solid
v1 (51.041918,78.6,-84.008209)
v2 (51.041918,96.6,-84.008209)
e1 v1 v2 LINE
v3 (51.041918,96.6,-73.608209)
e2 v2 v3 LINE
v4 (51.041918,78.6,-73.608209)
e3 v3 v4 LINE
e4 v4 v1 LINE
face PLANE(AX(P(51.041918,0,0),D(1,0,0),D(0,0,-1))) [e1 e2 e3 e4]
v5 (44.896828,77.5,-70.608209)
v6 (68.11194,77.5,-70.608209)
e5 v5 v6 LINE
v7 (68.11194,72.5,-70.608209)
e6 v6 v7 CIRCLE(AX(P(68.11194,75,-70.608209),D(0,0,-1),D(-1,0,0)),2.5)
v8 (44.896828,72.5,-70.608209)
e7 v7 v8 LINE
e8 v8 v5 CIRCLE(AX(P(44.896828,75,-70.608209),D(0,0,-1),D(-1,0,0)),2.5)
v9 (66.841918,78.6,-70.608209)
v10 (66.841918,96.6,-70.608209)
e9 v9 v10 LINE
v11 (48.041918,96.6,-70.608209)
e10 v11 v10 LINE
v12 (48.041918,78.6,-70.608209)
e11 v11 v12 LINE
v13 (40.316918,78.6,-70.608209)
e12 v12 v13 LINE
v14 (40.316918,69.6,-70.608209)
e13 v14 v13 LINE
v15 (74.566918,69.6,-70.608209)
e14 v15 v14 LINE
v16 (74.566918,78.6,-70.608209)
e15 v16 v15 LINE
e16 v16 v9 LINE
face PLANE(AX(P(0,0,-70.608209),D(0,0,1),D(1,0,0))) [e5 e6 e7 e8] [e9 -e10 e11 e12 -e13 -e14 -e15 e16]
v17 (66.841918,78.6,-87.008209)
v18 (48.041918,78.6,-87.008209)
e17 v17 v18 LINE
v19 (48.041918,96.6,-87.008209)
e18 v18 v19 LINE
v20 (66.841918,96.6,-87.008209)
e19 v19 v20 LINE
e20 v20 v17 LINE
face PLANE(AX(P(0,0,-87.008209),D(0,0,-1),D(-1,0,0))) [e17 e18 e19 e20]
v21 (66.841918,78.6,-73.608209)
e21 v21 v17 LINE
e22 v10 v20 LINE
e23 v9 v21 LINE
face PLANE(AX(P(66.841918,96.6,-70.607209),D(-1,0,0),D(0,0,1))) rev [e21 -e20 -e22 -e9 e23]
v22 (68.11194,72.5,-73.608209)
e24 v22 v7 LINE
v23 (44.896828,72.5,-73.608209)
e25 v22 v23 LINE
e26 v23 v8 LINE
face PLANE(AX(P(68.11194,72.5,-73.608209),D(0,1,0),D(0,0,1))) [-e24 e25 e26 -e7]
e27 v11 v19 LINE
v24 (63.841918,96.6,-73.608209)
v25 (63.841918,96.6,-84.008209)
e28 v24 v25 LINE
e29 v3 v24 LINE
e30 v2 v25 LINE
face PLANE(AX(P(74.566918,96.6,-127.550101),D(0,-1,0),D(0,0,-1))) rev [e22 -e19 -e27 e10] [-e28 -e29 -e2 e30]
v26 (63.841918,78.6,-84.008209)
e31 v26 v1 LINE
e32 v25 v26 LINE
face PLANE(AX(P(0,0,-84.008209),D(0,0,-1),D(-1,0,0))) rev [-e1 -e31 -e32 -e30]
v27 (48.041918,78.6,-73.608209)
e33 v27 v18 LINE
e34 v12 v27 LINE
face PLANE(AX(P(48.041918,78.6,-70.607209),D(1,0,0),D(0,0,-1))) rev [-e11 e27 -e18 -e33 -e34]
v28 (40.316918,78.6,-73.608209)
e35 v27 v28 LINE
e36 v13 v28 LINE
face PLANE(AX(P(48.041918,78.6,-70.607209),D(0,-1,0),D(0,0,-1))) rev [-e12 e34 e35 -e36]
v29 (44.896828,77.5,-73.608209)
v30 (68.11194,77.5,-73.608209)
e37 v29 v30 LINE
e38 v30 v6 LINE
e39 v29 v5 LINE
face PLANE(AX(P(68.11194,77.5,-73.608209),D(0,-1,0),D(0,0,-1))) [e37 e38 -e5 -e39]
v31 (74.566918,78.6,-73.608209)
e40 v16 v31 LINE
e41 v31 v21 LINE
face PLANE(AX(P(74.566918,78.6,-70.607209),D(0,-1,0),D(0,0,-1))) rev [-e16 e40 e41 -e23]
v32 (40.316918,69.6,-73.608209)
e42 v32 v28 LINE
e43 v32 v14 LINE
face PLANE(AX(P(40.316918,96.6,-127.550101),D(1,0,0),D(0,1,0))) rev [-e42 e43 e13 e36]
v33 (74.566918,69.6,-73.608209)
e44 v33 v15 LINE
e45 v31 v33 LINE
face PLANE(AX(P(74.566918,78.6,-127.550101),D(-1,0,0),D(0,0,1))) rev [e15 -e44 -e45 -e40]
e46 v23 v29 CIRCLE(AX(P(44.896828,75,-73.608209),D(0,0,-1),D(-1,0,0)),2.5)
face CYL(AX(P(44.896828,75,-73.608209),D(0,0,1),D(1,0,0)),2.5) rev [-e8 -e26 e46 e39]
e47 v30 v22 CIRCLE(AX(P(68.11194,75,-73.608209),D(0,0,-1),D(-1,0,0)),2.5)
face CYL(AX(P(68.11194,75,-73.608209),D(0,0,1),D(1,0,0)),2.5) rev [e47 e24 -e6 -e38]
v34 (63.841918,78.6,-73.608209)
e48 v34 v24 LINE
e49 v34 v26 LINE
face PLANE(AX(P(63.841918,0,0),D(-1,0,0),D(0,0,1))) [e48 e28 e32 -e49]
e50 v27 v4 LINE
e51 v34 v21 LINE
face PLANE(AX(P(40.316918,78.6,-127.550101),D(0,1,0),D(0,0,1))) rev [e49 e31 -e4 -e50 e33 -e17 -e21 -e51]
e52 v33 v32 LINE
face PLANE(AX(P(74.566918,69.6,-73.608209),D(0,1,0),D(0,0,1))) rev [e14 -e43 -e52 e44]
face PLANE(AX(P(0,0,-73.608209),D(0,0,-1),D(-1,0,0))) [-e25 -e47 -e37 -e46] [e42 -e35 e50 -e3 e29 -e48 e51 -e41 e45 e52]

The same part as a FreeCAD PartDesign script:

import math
import FreeCAD as App
import Part
import Sketcher
Q = App.Units.Quantity

doc = App.newDocument("Part")
body = doc.addObject("PartDesign::Body", "Body")

sketch1 = doc.addObject("Sketcher::SketchObject", "Sketch")
body.addObject(sketch1)
sketch1.AttachmentSupport = (doc.XY_Plane, [""])
sketch1.MapMode = "FlatFace"
sketch1.AttachmentOffset = App.Placement(App.Vector(0, 0, -70.608209), App.Rotation())
sketch1.addGeometry([
    Part.LineSegment(App.Vector(46, 82, 0), App.Vector(69, 82, 0)),
    Part.LineSegment(App.Vector(69, 82, 0), App.Vector(69, 97, 0)),
    Part.LineSegment(App.Vector(69, 97, 0), App.Vector(75, 97, 0)),
    Part.LineSegment(App.Vector(75, 97, 0), App.Vector(75, 79, 0)),
    Part.LineSegment(App.Vector(75, 79, 0), App.Vector(40, 79, 0)),
    Part.LineSegment(App.Vector(40, 79, 0), App.Vector(40, 97, 0)),
    Part.LineSegment(App.Vector(40, 97, 0), App.Vector(46, 97, 0)),
    Part.LineSegment(App.Vector(46, 97, 0), App.Vector(46, 82, 0)),
], False)
sketch1.addConstraint([
    Sketcher.Constraint("Coincident", 0, 2, 1, 1),
    Sketcher.Constraint("Coincident", 1, 2, 2, 1),
    Sketcher.Constraint("Coincident", 2, 2, 3, 1),
    Sketcher.Constraint("Coincident", 3, 2, 4, 1),
    Sketcher.Constraint("Coincident", 4, 2, 5, 1),
    Sketcher.Constraint("Coincident", 5, 2, 6, 1),
    Sketcher.Constraint("Coincident", 6, 2, 7, 1),
    Sketcher.Constraint("Coincident", 7, 2, 0, 1),
    Sketcher.Constraint("Horizontal", 0),
    Sketcher.Constraint("Vertical", 1),
    Sketcher.Constraint("Horizontal", 2),
    Sketcher.Constraint("Vertical", 3),
    Sketcher.Constraint("Horizontal", 4),
    Sketcher.Constraint("Vertical", 5),
    Sketcher.Constraint("Horizontal", 6),
    Sketcher.Constraint("Vertical", 7),
    Sketcher.Constraint("Horizontal", 2, 2, 5, 2),
    Sketcher.Constraint("Equal", 2, 6),
    Sketcher.Constraint("DistanceY", 3, 2, 3, 1, Q("18 mm")),
    Sketcher.Constraint("DistanceX", 2, 1, 2, 2, Q("5.5 mm")),
    Sketcher.Constraint("DistanceY", 1, 1, 1, 2, Q("15.1 mm")),
    Sketcher.Constraint("DistanceX", 0, 1, 0, 2, Q("23.25 mm")),
    Sketcher.Constraint("DistanceY", -1, 1, 0, 2, Q("81.5 mm")),
    Sketcher.Constraint("DistanceX", -1, 1, 0, 2, Q("69.066918 mm")),
])
pad1 = doc.addObject("PartDesign::Pad", "Pad")
body.addObject(pad1)
pad1.Profile = sketch1
pad1.Length = 17.85
pad1.Reversed = True

sketch2 = doc.addObject("Sketcher::SketchObject", "Sketch001")
body.addObject(sketch2)
sketch2.AttachmentSupport = (doc.XY_Plane, [""])
sketch2.MapMode = "FlatFace"
sketch2.AttachmentOffset = App.Placement(App.Vector(0, 0, -88.458209), App.Rotation())
sketch2.addGeometry([
    Part.Circle(App.Vector(43.7, 88, 0), App.Vector(0, 0, 1), 1),
    Part.Circle(App.Vector(71.1, 88, 0), App.Vector(0, 0, 1), 1),
], False)
sketch2.addConstraint([
    Sketcher.Constraint("Equal", 0, 1),
    Sketcher.Constraint("Horizontal", 0, 3, 1, 3),
    Sketcher.Constraint("Diameter", 0, Q("2 mm")),
    Sketcher.Constraint("DistanceY", -1, 1, 0, 3, Q("88 mm")),
    Sketcher.Constraint("DistanceX", 0, 3, 1, 3, Q("27.4 mm")),
    Sketcher.Constraint("DistanceX", -1, 1, 0, 3, Q("43.741918 mm")),
])
pocket1 = doc.addObject("PartDesign::Pocket", "Pocket")
body.addObject(pocket1)
pocket1.Profile = sketch2
pocket1.Length = 10
pocket1.Reversed = True

sketch3 = doc.addObject("Sketcher::SketchObject", "Sketch002")
body.addObject(sketch3)
sketch3.AttachmentSupport = (doc.XY_Plane, [""])
sketch3.MapMode = "FlatFace"
sketch3.AttachmentOffset = App.Placement(App.Vector(0, 0, -70.608209), App.Rotation())
sketch3.addGeometry([
    Part.LineSegment(App.Vector(74.6, 78.6, 0), App.Vector(74.6, 69.6, 0)),
    Part.LineSegment(App.Vector(74.6, 69.6, 0), App.Vector(40.3, 69.6, 0)),
    Part.LineSegment(App.Vector(40.3, 69.6, 0), App.Vector(40.3, 78.6, 0)),
    Part.LineSegment(App.Vector(40.3, 78.6, 0), App.Vector(74.6, 78.6, 0)),
    Part.ArcOfCircle(Part.Circle(App.Vector(68.1, 75, 0), App.Vector(0, 0, 1), 2.5), math.radians(-90), math.radians(90)),
    Part.LineSegment(App.Vector(68.1, 77.5, 0), App.Vector(44.9, 77.5, 0)),
    Part.ArcOfCircle(Part.Circle(App.Vector(44.9, 75, 0), App.Vector(0, 0, 1), 2.5), math.radians(90), math.radians(270)),
    Part.LineSegment(App.Vector(44.9, 72.5, 0), App.Vector(68.1, 72.5, 0)),
], False)
sketch3.addConstraint([
    Sketcher.Constraint("Coincident", 0, 2, 1, 1),
    Sketcher.Constraint("Coincident", 1, 2, 2, 1),
    Sketcher.Constraint("Coincident", 2, 2, 3, 1),
    Sketcher.Constraint("Coincident", 3, 2, 0, 1),
    Sketcher.Constraint("Tangent", 4, 2, 5, 1),
    Sketcher.Constraint("Tangent", 5, 2, 6, 1),
    Sketcher.Constraint("Tangent", 6, 2, 7, 1),
    Sketcher.Constraint("Tangent", 7, 2, 4, 1),
    Sketcher.Constraint("Vertical", 0),
    Sketcher.Constraint("Horizontal", 1),
    Sketcher.Constraint("Vertical", 2),
    Sketcher.Constraint("Horizontal", 3),
    Sketcher.Constraint("Horizontal", 5),
    Sketcher.Constraint("Horizontal", 7),
    Sketcher.Constraint("Radius", 4, Q("2.5 mm")),
    Sketcher.Constraint("DistanceY", 0, 2, 0, 1, Q("9 mm")),
    Sketcher.Constraint("DistanceY", -1, 1, 4, 3, Q("75 mm")),
    Sketcher.Constraint("DistanceX", 1, 2, 1, 1, Q("34.25 mm")),
    Sketcher.Constraint("DistanceY", -1, 1, 0, 2, Q("69.6 mm")),
    Sketcher.Constraint("DistanceX", 5, 2, 5, 1, Q("23.215112 mm")),
    Sketcher.Constraint("DistanceX", -1, 1, 4, 3, Q("68.11194 mm")),
    Sketcher.Constraint("DistanceX", 6, 3, 0, 2, Q("29.67009 mm")),
])
pad2 = doc.addObject("PartDesign::Pad", "Pad001")
body.addObject(pad2)
pad2.Profile = sketch3
pad2.Length = 3
pad2.Reversed = True

sketch4 = doc.addObject("Sketcher::SketchObject", "Sketch003")
body.addObject(sketch4)
sketch4.AttachmentSupport = (doc.YZ_Plane, [""])
sketch4.MapMode = "FlatFace"
sketch4.AttachmentOffset = App.Placement(App.Vector(0, 0, 45.816918), App.Rotation())
sketch4.addGeometry([
    Part.LineSegment(App.Vector(97, -71, 0), App.Vector(82, -71, 0)),
    Part.LineSegment(App.Vector(82, -71, 0), App.Vector(82, -88, 0)),
    Part.LineSegment(App.Vector(82, -88, 0), App.Vector(97, -88, 0)),
    Part.LineSegment(App.Vector(97, -88, 0), App.Vector(97, -71, 0)),
], False)
sketch4.addConstraint([
    Sketcher.Constraint("Coincident", 0, 2, 1, 1),
    Sketcher.Constraint("Coincident", 1, 2, 2, 1),
    Sketcher.Constraint("Coincident", 2, 2, 3, 1),
    Sketcher.Constraint("Coincident", 3, 2, 0, 1),
    Sketcher.Constraint("Horizontal", 0),
    Sketcher.Constraint("Vertical", 1),
    Sketcher.Constraint("Horizontal", 2),
    Sketcher.Constraint("Vertical", 3),
    Sketcher.Constraint("DistanceX", 0, 2, 0, 1, Q("15.1 mm")),
    Sketcher.Constraint("DistanceY", 1, 2, 1, 1, Q("17.85 mm")),
    Sketcher.Constraint("DistanceX", -1, 1, 0, 2, Q("81.5 mm")),
    Sketcher.Constraint("DistanceY", 0, 2, -1, 1, Q("70.608209 mm")),
])
pad3 = doc.addObject("PartDesign::Pad", "Pad002")
body.addObject(pad3)
pad3.Profile = sketch4
pad3.Length = 5.225

sketch5 = doc.addObject("Sketcher::SketchObject", "Sketch004")
body.addObject(sketch5)
sketch5.AttachmentSupport = (doc.YZ_Plane, [""])
sketch5.MapMode = "FlatFace"
sketch5.AttachmentOffset = App.Placement(App.Vector(0, 0, 69.066918), App.Rotation())
sketch5.addGeometry([
    Part.LineSegment(App.Vector(97, -71, 0), App.Vector(82, -71, 0)),
    Part.LineSegment(App.Vector(82, -71, 0), App.Vector(82, -88, 0)),
    Part.LineSegment(App.Vector(82, -88, 0), App.Vector(97, -88, 0)),
    Part.LineSegment(App.Vector(97, -88, 0), App.Vector(97, -71, 0)),
], False)
sketch5.addConstraint([
    Sketcher.Constraint("Coincident", 0, 2, 1, 1),
    Sketcher.Constraint("Coincident", 1, 2, 2, 1),
    Sketcher.Constraint("Coincident", 2, 2, 3, 1),
    Sketcher.Constraint("Coincident", 3, 2, 0, 1),
    Sketcher.Constraint("Horizontal", 0),
    Sketcher.Constraint("Vertical", 1),
    Sketcher.Constraint("Horizontal", 2),
    Sketcher.Constraint("Vertical", 3),
    Sketcher.Constraint("DistanceX", 0, 2, 0, 1, Q("15.1 mm")),
    Sketcher.Constraint("DistanceY", 1, 2, 1, 1, Q("17.85 mm")),
    Sketcher.Constraint("DistanceX", -1, 1, 0, 2, Q("81.5 mm")),
    Sketcher.Constraint("DistanceY", 0, 2, -1, 1, Q("70.608209 mm")),
])
pad4 = doc.addObject("PartDesign::Pad", "Pad003")
body.addObject(pad4)
pad4.Profile = sketch5
pad4.Length = 5.225
pad4.Reversed = True

sketch6 = doc.addObject("Sketcher::SketchObject", "Sketch005")
body.addObject(sketch6)
sketch6.AttachmentSupport = (doc.XY_Plane, [""])
sketch6.MapMode = "FlatFace"
sketch6.AttachmentOffset = App.Placement(App.Vector(0, 0, -88.458209), App.Rotation())
sketch6.addGeometry([
    Part.LineSegment(App.Vector(75, 97, 0), App.Vector(75, 79, 0)),
    Part.LineSegment(App.Vector(75, 79, 0), App.Vector(67, 79, 0)),
    Part.LineSegment(App.Vector(67, 79, 0), App.Vector(67, 97, 0)),
    Part.LineSegment(App.Vector(67, 97, 0), App.Vector(75, 97, 0)),
], False)
sketch6.addConstraint([
    Sketcher.Constraint("Coincident", 0, 2, 1, 1),
    Sketcher.Constraint("Coincident", 1, 2, 2, 1),
    Sketcher.Constraint("Coincident", 2, 2, 3, 1),
    Sketcher.Constraint("Coincident", 3, 2, 0, 1),
    Sketcher.Constraint("Vertical", 0),
    Sketcher.Constraint("Horizontal", 1),
    Sketcher.Constraint("Vertical", 2),
    Sketcher.Constraint("Horizontal", 3),
    Sketcher.Constraint("DistanceY", 0, 2, 0, 1, Q("18 mm")),
    Sketcher.Constraint("DistanceY", -1, 1, 0, 2, Q("78.6 mm")),
    Sketcher.Constraint("DistanceX", 1, 2, 1, 1, Q("7.725 mm")),
    Sketcher.Constraint("DistanceX", -1, 1, 0, 2, Q("74.566918 mm")),
])
pocket2 = doc.addObject("PartDesign::Pocket", "Pocket001")
body.addObject(pocket2)
pocket2.Profile = sketch6
pocket2.Length = 17.85
pocket2.Reversed = True

sketch7 = doc.addObject("Sketcher::SketchObject", "Sketch006")
body.addObject(sketch7)
sketch7.AttachmentSupport = (doc.XY_Plane, [""])
sketch7.MapMode = "FlatFace"
sketch7.AttachmentOffset = App.Placement(App.Vector(0, 0, -88.458209), App.Rotation())
sketch7.addGeometry([
    Part.LineSegment(App.Vector(48, 97, 0), App.Vector(48, 79, 0)),
    Part.LineSegment(App.Vector(48, 79, 0), App.Vector(40, 79, 0)),
    Part.LineSegment(App.Vector(40, 79, 0), App.Vector(40, 97, 0)),
    Part.LineSegment(App.Vector(40, 97, 0), App.Vector(48, 97, 0)),
], False)
sketch7.addConstraint([
    Sketcher.Constraint("Coincident", 0, 2, 1, 1),
    Sketcher.Constraint("Coincident", 1, 2, 2, 1),
    Sketcher.Constraint("Coincident", 2, 2, 3, 1),
    Sketcher.Constraint("Coincident", 3, 2, 0, 1),
    Sketcher.Constraint("Vertical", 0),
    Sketcher.Constraint("Horizontal", 1),
    Sketcher.Constraint("Vertical", 2),
    Sketcher.Constraint("Horizontal", 3),
    Sketcher.Constraint("DistanceY", 0, 2, 0, 1, Q("18 mm")),
    Sketcher.Constraint("DistanceY", -1, 1, 0, 2, Q("78.6 mm")),
    Sketcher.Constraint("DistanceX", 1, 2, 1, 1, Q("7.725 mm")),
    Sketcher.Constraint("DistanceX", -1, 1, 0, 2, Q("48.041918 mm")),
])
pocket3 = doc.addObject("PartDesign::Pocket", "Pocket002")
body.addObject(pocket3)
pocket3.Profile = sketch7
pocket3.Length = 17.85
pocket3.Reversed = True

sketch8 = doc.addObject("Sketcher::SketchObject", "Sketch007")
body.addObject(sketch8)
sketch8.AttachmentSupport = (doc.XZ_Plane, [""])
sketch8.MapMode = "FlatFace"
sketch8.AttachmentOffset = App.Placement(App.Vector(0, 0, -78.6), App.Rotation())
sketch8.addGeometry([
    Part.LineSegment(App.Vector(40.3, -73.6, 0), App.Vector(40.3, -70.6, 0)),
    Part.LineSegment(App.Vector(40.3, -70.6, 0), App.Vector(74.6, -70.6, 0)),
    Part.LineSegment(App.Vector(74.6, -70.6, 0), App.Vector(74.6, -73.6, 0)),
    Part.LineSegment(App.Vector(74.6, -73.6, 0), App.Vector(40.3, -73.6, 0)),
], False)
sketch8.addConstraint([
    Sketcher.Constraint("Coincident", 0, 2, 1, 1),
    Sketcher.Constraint("Coincident", 1, 2, 2, 1),
    Sketcher.Constraint("Coincident", 2, 2, 3, 1),
    Sketcher.Constraint("Coincident", 3, 2, 0, 1),
    Sketcher.Constraint("Vertical", 0),
    Sketcher.Constraint("Horizontal", 1),
    Sketcher.Constraint("Vertical", 2),
    Sketcher.Constraint("Horizontal", 3),
    Sketcher.Constraint("DistanceY", 0, 1, 0, 2, Q("3 mm")),
    Sketcher.Constraint("DistanceX", 1, 1, 1, 2, Q("34.25 mm")),
    Sketcher.Constraint("DistanceY", 0, 2, -1, 1, Q("70.608209 mm")),
    Sketcher.Constraint("DistanceX", -1, 1, 0, 2, Q("40.316918 mm")),
])
pad5 = doc.addObject("PartDesign::Pad", "Pad004")
body.addObject(pad5)
pad5.Profile = sketch8
pad5.Length = 18
pad5.Reversed = True

sketch9 = doc.addObject("Sketcher::SketchObject", "Sketch008")
body.addObject(sketch9)
sketch9.AttachmentSupport = (doc.XY_Plane, [""])
sketch9.MapMode = "FlatFace"
sketch9.AttachmentOffset = App.Placement(App.Vector(0, 0, -88.458209), App.Rotation())
sketch9.addGeometry([
    Part.LineSegment(App.Vector(63.8, 81.5, 0), App.Vector(63.8, 78.6, 0)),
    Part.LineSegment(App.Vector(63.8, 78.6, 0), App.Vector(51, 78.6, 0)),
    Part.LineSegment(App.Vector(51, 78.6, 0), App.Vector(51, 81.5, 0)),
    Part.LineSegment(App.Vector(51, 81.5, 0), App.Vector(63.8, 81.5, 0)),
], False)
sketch9.addConstraint([
    Sketcher.Constraint("Coincident", 0, 2, 1, 1),
    Sketcher.Constraint("Coincident", 1, 2, 2, 1),
    Sketcher.Constraint("Coincident", 2, 2, 3, 1),
    Sketcher.Constraint("Coincident", 3, 2, 0, 1),
    Sketcher.Constraint("Vertical", 0),
    Sketcher.Constraint("Horizontal", 1),
    Sketcher.Constraint("Vertical", 2),
    Sketcher.Constraint("Horizontal", 3),
    Sketcher.Constraint("DistanceX", 1, 2, 1, 1, Q("12.8 mm")),
    Sketcher.Constraint("DistanceY", 0, 2, 0, 1, Q("2.9 mm")),
    Sketcher.Constraint("DistanceY", -1, 1, 0, 2, Q("78.6 mm")),
    Sketcher.Constraint("DistanceX", -1, 1, 0, 2, Q("63.841918 mm")),
])
pocket4 = doc.addObject("PartDesign::Pocket", "Pocket003")
body.addObject(pocket4)
pocket4.Profile = sketch9
pocket4.Length = 14.85
pocket4.Reversed = True

sketch10 = doc.addObject("Sketcher::SketchObject", "Sketch009")
body.addObject(sketch10)
sketch10.AttachmentSupport = (doc.XY_Plane, [""])
sketch10.MapMode = "FlatFace"
sketch10.AttachmentOffset = App.Placement(App.Vector(0, 0, -73.608209), App.Rotation())
sketch10.addGeometry([
    Part.LineSegment(App.Vector(75, 97, 0), App.Vector(75, 79, 0)),
    Part.LineSegment(App.Vector(75, 79, 0), App.Vector(67, 79, 0)),
    Part.LineSegment(App.Vector(67, 79, 0), App.Vector(67, 97, 0)),
    Part.LineSegment(App.Vector(67, 97, 0), App.Vector(75, 97, 0)),
], False)
sketch10.addConstraint([
    Sketcher.Constraint("Coincident", 0, 2, 1, 1),
    Sketcher.Constraint("Coincident", 1, 2, 2, 1),
    Sketcher.Constraint("Coincident", 2, 2, 3, 1),
    Sketcher.Constraint("Coincident", 3, 2, 0, 1),
    Sketcher.Constraint("Vertical", 0),
    Sketcher.Constraint("Horizontal", 1),
    Sketcher.Constraint("Vertical", 2),
    Sketcher.Constraint("Horizontal", 3),
    Sketcher.Constraint("DistanceY", 0, 2, 0, 1, Q("18 mm")),
    Sketcher.Constraint("DistanceY", -1, 1, 0, 2, Q("78.6 mm")),
    Sketcher.Constraint("DistanceX", 1, 2, 1, 1, Q("7.725 mm")),
    Sketcher.Constraint("DistanceX", -1, 1, 0, 2, Q("74.566918 mm")),
])
pocket5 = doc.addObject("PartDesign::Pocket", "Pocket004")
body.addObject(pocket5)
pocket5.Profile = sketch10
pocket5.Type = "UpToFirst"
pocket5.Reversed = True

sketch11 = doc.addObject("Sketcher::SketchObject", "Sketch010")
body.addObject(sketch11)
sketch11.AttachmentSupport = (doc.XY_Plane, [""])
sketch11.MapMode = "FlatFace"
sketch11.AttachmentOffset = App.Placement(App.Vector(0, 0, -73.608209), App.Rotation())
sketch11.addGeometry([
    Part.LineSegment(App.Vector(48, 97, 0), App.Vector(48, 79, 0)),
    Part.LineSegment(App.Vector(48, 79, 0), App.Vector(40, 79, 0)),
    Part.LineSegment(App.Vector(40, 79, 0), App.Vector(40, 97, 0)),
    Part.LineSegment(App.Vector(40, 97, 0), App.Vector(48, 97, 0)),
], False)
sketch11.addConstraint([
    Sketcher.Constraint("Coincident", 0, 2, 1, 1),
    Sketcher.Constraint("Coincident", 1, 2, 2, 1),
    Sketcher.Constraint("Coincident", 2, 2, 3, 1),
    Sketcher.Constraint("Coincident", 3, 2, 0, 1),
    Sketcher.Constraint("Vertical", 0),
    Sketcher.Constraint("Horizontal", 1),
    Sketcher.Constraint("Vertical", 2),
    Sketcher.Constraint("Horizontal", 3),
    Sketcher.Constraint("DistanceY", 0, 2, 0, 1, Q("18 mm")),
    Sketcher.Constraint("DistanceY", -1, 1, 0, 2, Q("78.6 mm")),
    Sketcher.Constraint("DistanceX", 1, 2, 1, 1, Q("7.725 mm")),
    Sketcher.Constraint("DistanceX", -1, 1, 0, 2, Q("48.041918 mm")),
])
pocket6 = doc.addObject("PartDesign::Pocket", "Pocket005")
body.addObject(pocket6)
pocket6.Profile = sketch11
pocket6.Type = "UpToFirst"
pocket6.Reversed = True

sketch12 = doc.addObject("Sketcher::SketchObject", "Sketch011")
body.addObject(sketch12)
sketch12.AttachmentSupport = (doc.XY_Plane, [""])
sketch12.MapMode = "FlatFace"
sketch12.AttachmentOffset = App.Placement(App.Vector(0, 0, -88.458209), App.Rotation())
sketch12.addGeometry([
    Part.LineSegment(App.Vector(67, 97, 0), App.Vector(67, 79, 0)),
    Part.LineSegment(App.Vector(67, 79, 0), App.Vector(48, 79, 0)),
    Part.LineSegment(App.Vector(48, 79, 0), App.Vector(48, 97, 0)),
    Part.LineSegment(App.Vector(48, 97, 0), App.Vector(67, 97, 0)),
], False)
sketch12.addConstraint([
    Sketcher.Constraint("Coincident", 0, 2, 1, 1),
    Sketcher.Constraint("Coincident", 1, 2, 2, 1),
    Sketcher.Constraint("Coincident", 2, 2, 3, 1),
    Sketcher.Constraint("Coincident", 3, 2, 0, 1),
    Sketcher.Constraint("Vertical", 0),
    Sketcher.Constraint("Horizontal", 1),
    Sketcher.Constraint("Vertical", 2),
    Sketcher.Constraint("Horizontal", 3),
    Sketcher.Constraint("DistanceY", 0, 2, 0, 1, Q("18 mm")),
    Sketcher.Constraint("DistanceX", 1, 2, 1, 1, Q("18.8 mm")),
    Sketcher.Constraint("DistanceY", -1, 1, 0, 2, Q("78.6 mm")),
    Sketcher.Constraint("DistanceX", -1, 1, 0, 2, Q("66.841918 mm")),
])
pocket7 = doc.addObject("PartDesign::Pocket", "Pocket006")
body.addObject(pocket7)
pocket7.Profile = sketch12
pocket7.Length = 4.45
pocket7.Reversed = True

sketch13 = doc.addObject("Sketcher::SketchObject", "Sketch012")
body.addObject(sketch13)
sketch13.AttachmentSupport = (doc.XY_Plane, [""])
sketch13.MapMode = "FlatFace"
sketch13.AttachmentOffset = App.Placement(App.Vector(0, 0, -84.008209), App.Rotation())
sketch13.addGeometry([
    Part.LineSegment(App.Vector(67, 97, 0), App.Vector(67, 79, 0)),
    Part.LineSegment(App.Vector(67, 79, 0), App.Vector(48, 79, 0)),
    Part.LineSegment(App.Vector(48, 79, 0), App.Vector(48, 97, 0)),
    Part.LineSegment(App.Vector(48, 97, 0), App.Vector(67, 97, 0)),
], False)
sketch13.addConstraint([
    Sketcher.Constraint("Coincident", 0, 2, 1, 1),
    Sketcher.Constraint("Coincident", 1, 2, 2, 1),
    Sketcher.Constraint("Coincident", 2, 2, 3, 1),
    Sketcher.Constraint("Coincident", 3, 2, 0, 1),
    Sketcher.Constraint("Vertical", 0),
    Sketcher.Constraint("Horizontal", 1),
    Sketcher.Constraint("Vertical", 2),
    Sketcher.Constraint("Horizontal", 3),
    Sketcher.Constraint("DistanceY", 0, 2, 0, 1, Q("18 mm")),
    Sketcher.Constraint("DistanceX", 1, 2, 1, 1, Q("18.8 mm")),
    Sketcher.Constraint("DistanceY", -1, 1, 0, 2, Q("78.6 mm")),
    Sketcher.Constraint("DistanceX", -1, 1, 0, 2, Q("66.841918 mm")),
])
pad6 = doc.addObject("PartDesign::Pad", "Pad005")
body.addObject(pad6)
pad6.Profile = sketch13
pad6.Length = 3
pad6.Reversed = True

doc.recompute()
